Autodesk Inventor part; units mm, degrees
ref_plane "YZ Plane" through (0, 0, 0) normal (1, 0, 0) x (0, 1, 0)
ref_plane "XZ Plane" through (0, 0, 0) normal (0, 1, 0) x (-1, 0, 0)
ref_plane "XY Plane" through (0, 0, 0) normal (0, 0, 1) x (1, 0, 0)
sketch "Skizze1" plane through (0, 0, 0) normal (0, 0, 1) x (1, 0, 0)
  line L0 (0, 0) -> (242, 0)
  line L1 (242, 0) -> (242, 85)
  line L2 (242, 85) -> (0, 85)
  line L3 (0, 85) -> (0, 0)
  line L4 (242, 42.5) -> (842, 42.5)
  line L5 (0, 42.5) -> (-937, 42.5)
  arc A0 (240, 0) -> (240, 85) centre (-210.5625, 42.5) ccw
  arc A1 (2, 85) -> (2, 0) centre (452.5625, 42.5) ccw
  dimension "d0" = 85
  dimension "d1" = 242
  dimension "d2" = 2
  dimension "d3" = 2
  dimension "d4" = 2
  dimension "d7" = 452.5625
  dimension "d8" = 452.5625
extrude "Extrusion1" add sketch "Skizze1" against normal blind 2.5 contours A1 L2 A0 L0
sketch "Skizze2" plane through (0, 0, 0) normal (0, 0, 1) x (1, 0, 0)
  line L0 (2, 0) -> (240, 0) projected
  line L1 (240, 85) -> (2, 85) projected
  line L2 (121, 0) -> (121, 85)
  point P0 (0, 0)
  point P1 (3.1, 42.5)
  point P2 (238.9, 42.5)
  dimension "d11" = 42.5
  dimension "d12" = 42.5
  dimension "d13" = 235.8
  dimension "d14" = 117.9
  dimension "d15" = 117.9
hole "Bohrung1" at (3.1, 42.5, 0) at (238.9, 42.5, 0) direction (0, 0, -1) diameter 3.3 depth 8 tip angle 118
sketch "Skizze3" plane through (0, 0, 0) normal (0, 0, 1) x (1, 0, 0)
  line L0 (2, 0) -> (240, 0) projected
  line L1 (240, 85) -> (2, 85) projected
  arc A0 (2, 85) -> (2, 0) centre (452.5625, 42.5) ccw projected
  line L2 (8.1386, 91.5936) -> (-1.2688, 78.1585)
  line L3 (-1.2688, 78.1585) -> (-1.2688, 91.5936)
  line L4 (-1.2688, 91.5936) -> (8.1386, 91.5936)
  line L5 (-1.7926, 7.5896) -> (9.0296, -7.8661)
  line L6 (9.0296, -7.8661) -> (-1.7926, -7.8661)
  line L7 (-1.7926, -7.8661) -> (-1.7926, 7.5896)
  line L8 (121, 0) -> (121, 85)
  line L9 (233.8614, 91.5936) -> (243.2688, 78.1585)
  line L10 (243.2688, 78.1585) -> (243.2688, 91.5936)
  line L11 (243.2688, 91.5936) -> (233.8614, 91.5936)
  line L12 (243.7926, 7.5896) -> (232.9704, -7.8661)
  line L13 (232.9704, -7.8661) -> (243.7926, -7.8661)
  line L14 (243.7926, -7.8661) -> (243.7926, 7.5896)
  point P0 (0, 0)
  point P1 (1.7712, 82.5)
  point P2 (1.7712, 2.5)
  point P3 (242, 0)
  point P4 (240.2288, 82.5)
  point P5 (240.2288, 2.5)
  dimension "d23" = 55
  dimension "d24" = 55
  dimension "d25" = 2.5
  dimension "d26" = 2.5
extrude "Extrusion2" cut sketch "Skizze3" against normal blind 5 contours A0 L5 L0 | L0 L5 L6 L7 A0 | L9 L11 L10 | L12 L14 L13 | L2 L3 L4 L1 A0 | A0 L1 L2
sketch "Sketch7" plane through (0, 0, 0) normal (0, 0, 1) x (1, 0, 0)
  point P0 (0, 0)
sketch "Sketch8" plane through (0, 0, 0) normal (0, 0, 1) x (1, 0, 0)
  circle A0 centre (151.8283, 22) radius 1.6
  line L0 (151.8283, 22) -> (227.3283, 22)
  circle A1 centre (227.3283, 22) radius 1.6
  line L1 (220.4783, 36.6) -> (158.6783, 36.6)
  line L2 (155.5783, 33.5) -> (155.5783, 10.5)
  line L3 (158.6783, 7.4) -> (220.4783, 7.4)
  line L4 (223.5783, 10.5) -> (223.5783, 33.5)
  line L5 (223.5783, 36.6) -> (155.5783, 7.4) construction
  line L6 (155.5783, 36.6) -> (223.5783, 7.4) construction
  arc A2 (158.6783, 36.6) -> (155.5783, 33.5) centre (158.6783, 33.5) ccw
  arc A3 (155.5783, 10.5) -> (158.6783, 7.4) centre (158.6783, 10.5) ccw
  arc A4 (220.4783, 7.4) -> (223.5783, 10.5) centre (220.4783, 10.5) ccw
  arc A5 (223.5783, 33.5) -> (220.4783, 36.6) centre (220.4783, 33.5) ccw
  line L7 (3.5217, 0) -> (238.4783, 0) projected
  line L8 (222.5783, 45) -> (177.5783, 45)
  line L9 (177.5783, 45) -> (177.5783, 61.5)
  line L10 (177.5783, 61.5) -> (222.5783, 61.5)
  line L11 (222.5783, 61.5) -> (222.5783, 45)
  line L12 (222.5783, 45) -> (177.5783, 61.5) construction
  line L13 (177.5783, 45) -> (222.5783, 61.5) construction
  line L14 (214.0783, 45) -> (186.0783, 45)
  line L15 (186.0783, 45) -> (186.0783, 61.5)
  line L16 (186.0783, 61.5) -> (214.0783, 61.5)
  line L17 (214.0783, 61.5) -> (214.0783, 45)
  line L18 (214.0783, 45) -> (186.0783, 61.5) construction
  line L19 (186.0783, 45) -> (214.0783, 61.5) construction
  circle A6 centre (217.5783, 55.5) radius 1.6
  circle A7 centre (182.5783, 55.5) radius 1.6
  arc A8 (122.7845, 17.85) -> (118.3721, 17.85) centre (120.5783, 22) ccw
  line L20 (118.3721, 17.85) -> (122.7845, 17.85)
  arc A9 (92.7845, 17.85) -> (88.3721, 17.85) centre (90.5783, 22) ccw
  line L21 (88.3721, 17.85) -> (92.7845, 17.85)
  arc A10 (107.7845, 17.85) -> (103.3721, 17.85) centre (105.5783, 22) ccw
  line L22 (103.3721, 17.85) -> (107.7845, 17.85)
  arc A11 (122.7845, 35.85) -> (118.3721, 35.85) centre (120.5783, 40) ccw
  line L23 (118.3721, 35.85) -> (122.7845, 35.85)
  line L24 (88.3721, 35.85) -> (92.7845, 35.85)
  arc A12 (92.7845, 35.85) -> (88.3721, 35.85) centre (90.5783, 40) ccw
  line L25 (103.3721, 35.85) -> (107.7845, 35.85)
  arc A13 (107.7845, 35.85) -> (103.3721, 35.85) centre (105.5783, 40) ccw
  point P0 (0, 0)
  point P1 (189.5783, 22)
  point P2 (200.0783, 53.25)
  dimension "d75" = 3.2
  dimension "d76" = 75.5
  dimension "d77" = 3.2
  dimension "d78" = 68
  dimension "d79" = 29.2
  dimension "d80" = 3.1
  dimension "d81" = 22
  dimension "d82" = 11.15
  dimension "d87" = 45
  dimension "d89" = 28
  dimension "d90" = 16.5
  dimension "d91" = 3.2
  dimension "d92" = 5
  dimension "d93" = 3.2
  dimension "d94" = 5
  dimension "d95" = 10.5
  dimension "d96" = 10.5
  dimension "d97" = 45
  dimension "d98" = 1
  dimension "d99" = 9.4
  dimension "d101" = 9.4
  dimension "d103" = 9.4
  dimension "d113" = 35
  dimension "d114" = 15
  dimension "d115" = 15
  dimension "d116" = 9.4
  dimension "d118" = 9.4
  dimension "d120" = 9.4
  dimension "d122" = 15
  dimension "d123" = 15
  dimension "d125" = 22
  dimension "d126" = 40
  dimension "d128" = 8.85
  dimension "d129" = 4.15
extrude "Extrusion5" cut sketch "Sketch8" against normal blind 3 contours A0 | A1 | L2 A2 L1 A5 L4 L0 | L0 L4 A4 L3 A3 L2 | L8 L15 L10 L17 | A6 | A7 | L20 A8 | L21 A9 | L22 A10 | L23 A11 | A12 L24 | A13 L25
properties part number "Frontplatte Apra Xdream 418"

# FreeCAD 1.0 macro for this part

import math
import FreeCAD as App
import Part
import Sketcher
from FreeCAD import Vector
Q = App.Units.Quantity

doc = App.newDocument("Part")
params = doc.addObject("Spreadsheet::Sheet", "Params")
for row, (alias, value) in enumerate([
    ("sketch1_width", "238 mm"),
    ("pad1_length", "2.5 mm"),
    ("sketch2_diameter", "3.3 mm"),
    ("hole_diameter", "3.3 mm"),
    ("hole_depth", "8 mm"),
    ("pocket1_length", "5 mm"),
    ("sketch4_diameter", "3.2 mm"),
    ("sketch4_radius", "3.1 mm"),
    ("sketch4_radius2", "4.7 mm"),
    ("sketch4_width", "28 mm"),
    ("sketch4_height", "16.5 mm"),
    ("pocket2_length", "3 mm"),
], start=1):
    params.set(f"A{row}", alias)
    params.set(f"B{row}", "=" + value)
    params.setAlias(f"B{row}", alias)

body = doc.addObject("PartDesign::Body", "Body")

sketch1 = body.newObject("Sketcher::SketchObject", "Sketch")
sketch1.AttachmentSupport = (doc.getObject("XY_Plane"), [""])
sketch1.MapMode = "FlatFace"
sketch1.addGeometry([
    Part.ArcOfCircle(Part.Circle(Vector(453, 42, 0), Vector(0, 0, 1), 453), math.radians(174.61), math.radians(185.39)),
    Part.LineSegment(Vector(2, 0, 0), Vector(240, 0, 0)),
    Part.ArcOfCircle(Part.Circle(Vector(-211, 42, 0), Vector(0, 0, 1), 453), math.radians(-5.39), math.radians(5.39)),
    Part.LineSegment(Vector(240, 85, 0), Vector(2, 85, 0)),
], False)
sketch1.addConstraint([
    Sketcher.Constraint("Coincident", 0, 2, 1, 1),
    Sketcher.Constraint("Coincident", 1, 2, 2, 1),
    Sketcher.Constraint("Coincident", 2, 2, 3, 1),
    Sketcher.Constraint("Coincident", 3, 2, 0, 1),
    Sketcher.Constraint("Horizontal", 1),
    Sketcher.Constraint("Horizontal", 3),
    Sketcher.Constraint("Equal", 0, 2),
    Sketcher.Constraint("PointOnObject", 1, 2, -1),
    Sketcher.Constraint("Horizontal", 0, 3, 2, 3),
    Sketcher.Constraint("Vertical", 1, 2, 2, 2),
    Sketcher.Constraint("DistanceX", -1, 1, 0, 2, Q("2 mm")),
    Sketcher.Constraint("DistanceY", -1, 1, 3, 2, Q("85 mm")),
    Sketcher.Constraint("Radius", 0, Q("452.5625 mm")),
    Sketcher.Constraint("DistanceX", 1, 1, 1, 2, Q("238 mm")),
])
sketch1.setExpression("Constraints[13]", "Params.sketch1_width")
pad1 = body.newObject("PartDesign::Pad", "Pad")
pad1.Profile = sketch1
pad1.setExpression("Length", "Params.pad1_length")
pad1.Reversed = True

sketch2 = body.newObject("Sketcher::SketchObject", "Sketch001")
sketch2.AttachmentSupport = (doc.getObject("XY_Plane"), [""])
sketch2.MapMode = "FlatFace"
sketch2.addGeometry([
    Part.Circle(Vector(3.1, 42.5, 0), Vector(0, 0, 1), 1.6),
    Part.Circle(Vector(238.9, 42.5, 0), Vector(0, 0, 1), 1.6),
], False)
sketch2.addConstraint([
    Sketcher.Constraint("Equal", 0, 1),
    Sketcher.Constraint("Horizontal", 0, 3, 1, 3),
    Sketcher.Constraint("Diameter", 0, Q("3.3 mm")),
    Sketcher.Constraint("DistanceX", -1, 1, 0, 3, Q("3.1 mm")),
    Sketcher.Constraint("DistanceY", -1, 1, 0, 3, Q("42.5 mm")),
    Sketcher.Constraint("DistanceX", -1, 1, 1, 3, Q("238.9 mm")),
])
sketch2.setExpression("Constraints[2]", "Params.sketch2_diameter")
doc.recompute()
hole = body.newObject("PartDesign::Hole", "Hole")
hole.Profile = sketch2
hole.ThreadType = "None"
hole.setExpression("Diameter", "Params.hole_diameter")
hole.DepthType = "Dimension"
hole.setExpression("Depth", "Params.hole_depth")
hole.DrillPoint = "Angled"
hole.DrillPointAngle = 118

sketch3 = body.newObject("Sketcher::SketchObject", "Sketch002")
sketch3.AttachmentSupport = (doc.getObject("XY_Plane"), [""])
sketch3.MapMode = "FlatFace"
sketch3.addGeometry([
    Part.LineSegment(Vector(-2, 8, 0), Vector(-2, -8, 0)),
    Part.LineSegment(Vector(-2, -8, 0), Vector(9, -8, 0)),
    Part.LineSegment(Vector(9, -8, 0), Vector(-2, 8, 0)),
    Part.LineSegment(Vector(234, 92, 0), Vector(243, 78, 0)),
    Part.LineSegment(Vector(243, 78, 0), Vector(243, 92, 0)),
    Part.LineSegment(Vector(243, 92, 0), Vector(234, 92, 0)),
    Part.LineSegment(Vector(244, 8, 0), Vector(233, -8, 0)),
    Part.LineSegment(Vector(233, -8, 0), Vector(244, -8, 0)),
    Part.LineSegment(Vector(244, -8, 0), Vector(244, 8, 0)),
    Part.LineSegment(Vector(-1, 78, 0), Vector(8, 92, 0)),
    Part.LineSegment(Vector(8, 92, 0), Vector(-1, 92, 0)),
    Part.LineSegment(Vector(-1, 92, 0), Vector(-1, 78, 0)),
], False)
sketch3.addConstraint([
    Sketcher.Constraint("Coincident", 0, 2, 1, 1),
    Sketcher.Constraint("Coincident", 1, 2, 2, 1),
    Sketcher.Constraint("Coincident", 2, 2, 0, 1),
    Sketcher.Constraint("Coincident", 3, 2, 4, 1),
    Sketcher.Constraint("Coincident", 4, 2, 5, 1),
    Sketcher.Constraint("Coincident", 5, 2, 3, 1),
    Sketcher.Constraint("Coincident", 6, 2, 7, 1),
    Sketcher.Constraint("Coincident", 7, 2, 8, 1),
    Sketcher.Constraint("Coincident", 8, 2, 6, 1),
    Sketcher.Constraint("Coincident", 9, 2, 10, 1),
    Sketcher.Constraint("Coincident", 10, 2, 11, 1),
    Sketcher.Constraint("Coincident", 11, 2, 9, 1),
    Sketcher.Constraint("Vertical", 0),
    Sketcher.Constraint("Horizontal", 1),
    Sketcher.Constraint("Vertical", 4),
    Sketcher.Constraint("Horizontal", 5),
    Sketcher.Constraint("Horizontal", 7),
    Sketcher.Constraint("Vertical", 8),
    Sketcher.Constraint("Horizontal", 10),
    Sketcher.Constraint("Vertical", 11),
    Sketcher.Constraint("Parallel", 2, 3),
    Sketcher.Constraint("Parallel", 6, 9),
    Sketcher.Constraint("Horizontal", 1, 2, 6, 2),
    Sketcher.Constraint("Horizontal", 2, 2, 8, 2),
    Sketcher.Constraint("Horizontal", 5, 2, 9, 2),
    Sketcher.Constraint("Horizontal", 3, 2, 11, 2),
    Sketcher.Constraint("Equal", 1, 7),
    Sketcher.Constraint("Angle", 3, Q("-55 deg")),
    Sketcher.Constraint("DistanceY", 4, 1, 4, 2, Q("13.435 mm")),
    Sketcher.Constraint("Distance", 2, Q("18.868 mm")),
    Sketcher.Constraint("DistanceY", 0, 2, -1, 1, Q("7.866 mm")),
    Sketcher.Constraint("DistanceY", 2, 2, 3, 2, Q("70.569 mm")),
    Sketcher.Constraint("DistanceX", 2, 2, 5, 2, Q("235.654 mm")),
    Sketcher.Constraint("DistanceX", 6, 2, 5, 2, Q("0.891 mm")),
    Sketcher.Constraint("DistanceX", 9, 2, 1, 2, Q("0.891 mm")),
    Sketcher.Constraint("DistanceX", 0, 2, -1, 1, Q("1.7926 mm")),
])
pocket1 = body.newObject("PartDesign::Pocket", "Pocket")
pocket1.Profile = sketch3
pocket1.setExpression("Length", "Params.pocket1_length")

sketch4 = body.newObject("Sketcher::SketchObject", "Sketch003")
sketch4.AttachmentSupport = (doc.getObject("XY_Plane"), [""])
sketch4.MapMode = "FlatFace"
sketch4.addGeometry([
    Part.Circle(Vector(151.8, 22, 0), Vector(0, 0, 1), 1.6),
    Part.Circle(Vector(227.3, 22, 0), Vector(0, 0, 1), 1.6),
    Part.LineSegment(Vector(155.6, 33.5, 0), Vector(155.6, 10.5, 0)),
    Part.ArcOfCircle(Part.Circle(Vector(158.7, 10.5, 0), Vector(0, 0, 1), 3.1), math.radians(180), math.radians(270)),
    Part.LineSegment(Vector(158.7, 7.4, 0), Vector(220.5, 7.4, 0)),
    Part.ArcOfCircle(Part.Circle(Vector(220.5, 10.5, 0), Vector(0, 0, 1), 3.1), math.radians(-90), math.radians(0)),
    Part.LineSegment(Vector(223.6, 10.5, 0), Vector(223.6, 33.5, 0)),
    Part.ArcOfCircle(Part.Circle(Vector(220.5, 33.5, 0), Vector(0, 0, 1), 3.1), math.radians(0), math.radians(90)),
    Part.LineSegment(Vector(220.5, 36.6, 0), Vector(158.7, 36.6, 0)),
    Part.ArcOfCircle(Part.Circle(Vector(158.7, 33.5, 0), Vector(0, 0, 1), 3.1), math.radians(90), math.radians(180)),
    Part.LineSegment(Vector(186.1, 45, 0), Vector(214.1, 45, 0)),
    Part.LineSegment(Vector(214.1, 45, 0), Vector(214.1, 61.5, 0)),
    Part.LineSegment(Vector(214.1, 61.5, 0), Vector(186.1, 61.5, 0)),
    Part.LineSegment(Vector(186.1, 61.5, 0), Vector(186.1, 45, 0)),
    Part.Circle(Vector(217.6, 55.5, 0), Vector(0, 0, 1), 1.6),
    Part.Circle(Vector(182.6, 55.5, 0), Vector(0, 0, 1), 1.6),
    Part.LineSegment(Vector(118.4, 17.9, 0), Vector(122.8, 17.9, 0)),
    Part.ArcOfCircle(Part.Circle(Vector(120.6, 22, 0), Vector(0, 0, 1), 4.7), math.radians(-62), math.radians(242)),
    Part.LineSegment(Vector(88.4, 17.9, 0), Vector(92.8, 17.9, 0)),
    Part.ArcOfCircle(Part.Circle(Vector(90.6, 22, 0), Vector(0, 0, 1), 4.7), math.radians(-62), math.radians(242)),
    Part.LineSegment(Vector(103.4, 17.9, 0), Vector(107.8, 17.9, 0)),
    Part.ArcOfCircle(Part.Circle(Vector(105.6, 22, 0), Vector(0, 0, 1), 4.7), math.radians(-62), math.radians(242)),
    Part.LineSegment(Vector(118.4, 35.9, 0), Vector(122.8, 35.9, 0)),
    Part.ArcOfCircle(Part.Circle(Vector(120.6, 40, 0), Vector(0, 0, 1), 4.7), math.radians(-62), math.radians(242)),
    Part.ArcOfCircle(Part.Circle(Vector(90.6, 40, 0), Vector(0, 0, 1), 4.7), math.radians(-62), math.radians(242)),
    Part.LineSegment(Vector(88.4, 35.9, 0), Vector(92.8, 35.9, 0)),
    Part.ArcOfCircle(Part.Circle(Vector(105.6, 40, 0), Vector(0, 0, 1), 4.7), math.radians(-62), math.radians(242)),
    Part.LineSegment(Vector(103.4, 35.9, 0), Vector(107.8, 35.9, 0)),
], False)
sketch4.addConstraint([
    Sketcher.Constraint("Tangent", 2, 2, 3, 1),
    Sketcher.Constraint("Tangent", 3, 2, 4, 1),
    Sketcher.Constraint("Tangent", 4, 2, 5, 1),
    Sketcher.Constraint("Tangent", 5, 2, 6, 1),
    Sketcher.Constraint("Tangent", 6, 2, 7, 1),
    Sketcher.Constraint("Tangent", 7, 2, 8, 1),
    Sketcher.Constraint("Tangent", 8, 2, 9, 1),
    Sketcher.Constraint("Tangent", 9, 2, 2, 1),
    Sketcher.Constraint("Coincident", 10, 2, 11, 1),
    Sketcher.Constraint("Coincident", 11, 2, 12, 1),
    Sketcher.Constraint("Coincident", 12, 2, 13, 1),
    Sketcher.Constraint("Coincident", 13, 2, 10, 1),
    Sketcher.Constraint("Coincident", 16, 1, 17, 2),
    Sketcher.Constraint("Coincident", 17, 1, 16, 2),
    Sketcher.Constraint("Coincident", 18, 1, 19, 2),
    Sketcher.Constraint("Coincident", 19, 1, 18, 2),
    Sketcher.Constraint("Coincident", 20, 1, 21, 2),
    Sketcher.Constraint("Coincident", 21, 1, 20, 2),
    Sketcher.Constraint("Coincident", 22, 1, 23, 2),
    Sketcher.Constraint("Coincident", 23, 1, 22, 2),
    Sketcher.Constraint("Coincident", 24, 1, 25, 2),
    Sketcher.Constraint("Coincident", 25, 1, 24, 2),
    Sketcher.Constraint("Coincident", 26, 1, 27, 2),
    Sketcher.Constraint("Coincident", 27, 1, 26, 2),
    Sketcher.Constraint("Vertical", 2),
    Sketcher.Constraint("Horizontal", 4),
    Sketcher.Constraint("Vertical", 6),
    Sketcher.Constraint("Horizontal", 8),
    Sketcher.Constraint("Horizontal", 10),
    Sketcher.Constraint("Vertical", 11),
    Sketcher.Constraint("Horizontal", 12),
    Sketcher.Constraint("Vertical", 13),
    Sketcher.Constraint("Horizontal", 16),
    Sketcher.Constraint("Horizontal", 18),
    Sketcher.Constraint("Horizontal", 20),
    Sketcher.Constraint("Horizontal", 22),
    Sketcher.Constraint("Horizontal", 25),
    Sketcher.Constraint("Horizontal", 27),
    Sketcher.Constraint("Equal", 0, 1),
    Sketcher.Constraint("Equal", 3, 5),
    Sketcher.Constraint("Equal", 5, 7),
    Sketcher.Constraint("Equal", 7, 9),
    Sketcher.Constraint("Equal", 1, 14),
    Sketcher.Constraint("Equal", 14, 15),
    Sketcher.Constraint("Equal", 17, 19),
    Sketcher.Constraint("Equal", 19, 21),
    Sketcher.Constraint("Equal", 21, 23),
    Sketcher.Constraint("Equal", 23, 24),
    Sketcher.Constraint("Equal", 24, 26),
    Sketcher.Constraint("Horizontal", 0, 3, 1, 3),
    Sketcher.Constraint("Horizontal", 14, 3, 15, 3),
    Sketcher.Constraint("Horizontal", 1, 3, 17, 3),
    Sketcher.Constraint("Horizontal", 17, 3, 19, 3),
    Sketcher.Constraint("Horizontal", 19, 3, 21, 3),
    Sketcher.Constraint("Horizontal", 23, 3, 24, 3),
    Sketcher.Constraint("Horizontal", 24, 3, 26, 3),
    Sketcher.Constraint("Horizontal", 17, 1, 18, 1),
    Sketcher.Constraint("Horizontal", 19, 1, 20, 1),
    Sketcher.Constraint("Horizontal", 23, 1, 24, 1),
    Sketcher.Constraint("Horizontal", 25, 1, 26, 1),
    Sketcher.Constraint("Vertical", 17, 3, 23, 3),
    Sketcher.Constraint("Vertical", 19, 3, 24, 3),
    Sketcher.Constraint("Vertical", 21, 3, 26, 3),
    Sketcher.Constraint("Vertical", 16, 1, 22, 1),
    Sketcher.Constraint("Diameter", 0, Q("3.2 mm")),
    Sketcher.Constraint("Radius", 3, Q("3.1 mm")),
    Sketcher.Constraint("Radius", 17, Q("4.7 mm")),
    Sketcher.Constraint("DistanceX", 10, 1, 10, 2, Q("28 mm")),
    Sketcher.Constraint("DistanceY", 11, 1, 11, 2, Q("16.5 mm")),
    Sketcher.Constraint("DistanceY", -1, 1, 0, 3, Q("22 mm")),
    Sketcher.Constraint("DistanceY", -1, 1, 23, 3, Q("40 mm")),
    Sketcher.Constraint("DistanceY", -1, 1, 10, 2, Q("45 mm")),
    Sketcher.Constraint("DistanceY", 7, 3, 14, 3, Q("22 mm")),
    Sketcher.Constraint("DistanceY", 5, 3, 14, 3, Q("45 mm")),
    Sketcher.Constraint("DistanceX", 15, 3, 14, 3, Q("35 mm")),
    Sketcher.Constraint("DistanceX", 21, 3, 17, 3, Q("15 mm")),
    Sketcher.Constraint("DistanceX", 19, 3, 21, 3, Q("15 mm")),
    Sketcher.Constraint("DistanceX", 17, 3, 2, 2, Q("35 mm")),
    Sketcher.Constraint("DistanceY", 7, 3, 11, 2, Q("28 mm")),
    Sketcher.Constraint("DistanceX", 0, 3, 1, 3, Q("75.5 mm")),
    Sketcher.Constraint("DistanceY", 16, 1, 17, 3, Q("4.15 mm")),
    Sketcher.Constraint("DistanceX", 4, 1, 4, 2, Q("61.8 mm")),
    Sketcher.Constraint("DistanceX", 17, 3, 15, 3, Q("62 mm")),
    Sketcher.Constraint("DistanceX", 10, 2, 7, 2, Q("6.4 mm")),
    Sketcher.Constraint("DistanceX", 0, 3, 3, 3, Q("6.85 mm")),
    Sketcher.Constraint("DistanceX", -1, 1, 16, 1, Q("118.372 mm")),
])
sketch4.setExpression("Constraints[64]", "Params.sketch4_diameter")
sketch4.setExpression("Constraints[65]", "Params.sketch4_radius")
sketch4.setExpression("Constraints[66]", "Params.sketch4_radius2")
sketch4.setExpression("Constraints[67]", "Params.sketch4_width")
sketch4.setExpression("Constraints[68]", "Params.sketch4_height")
pocket2 = body.newObject("PartDesign::Pocket", "Pocket001")
pocket2.Profile = sketch4
pocket2.setExpression("Length", "Params.pocket2_length")

doc.recompute()
